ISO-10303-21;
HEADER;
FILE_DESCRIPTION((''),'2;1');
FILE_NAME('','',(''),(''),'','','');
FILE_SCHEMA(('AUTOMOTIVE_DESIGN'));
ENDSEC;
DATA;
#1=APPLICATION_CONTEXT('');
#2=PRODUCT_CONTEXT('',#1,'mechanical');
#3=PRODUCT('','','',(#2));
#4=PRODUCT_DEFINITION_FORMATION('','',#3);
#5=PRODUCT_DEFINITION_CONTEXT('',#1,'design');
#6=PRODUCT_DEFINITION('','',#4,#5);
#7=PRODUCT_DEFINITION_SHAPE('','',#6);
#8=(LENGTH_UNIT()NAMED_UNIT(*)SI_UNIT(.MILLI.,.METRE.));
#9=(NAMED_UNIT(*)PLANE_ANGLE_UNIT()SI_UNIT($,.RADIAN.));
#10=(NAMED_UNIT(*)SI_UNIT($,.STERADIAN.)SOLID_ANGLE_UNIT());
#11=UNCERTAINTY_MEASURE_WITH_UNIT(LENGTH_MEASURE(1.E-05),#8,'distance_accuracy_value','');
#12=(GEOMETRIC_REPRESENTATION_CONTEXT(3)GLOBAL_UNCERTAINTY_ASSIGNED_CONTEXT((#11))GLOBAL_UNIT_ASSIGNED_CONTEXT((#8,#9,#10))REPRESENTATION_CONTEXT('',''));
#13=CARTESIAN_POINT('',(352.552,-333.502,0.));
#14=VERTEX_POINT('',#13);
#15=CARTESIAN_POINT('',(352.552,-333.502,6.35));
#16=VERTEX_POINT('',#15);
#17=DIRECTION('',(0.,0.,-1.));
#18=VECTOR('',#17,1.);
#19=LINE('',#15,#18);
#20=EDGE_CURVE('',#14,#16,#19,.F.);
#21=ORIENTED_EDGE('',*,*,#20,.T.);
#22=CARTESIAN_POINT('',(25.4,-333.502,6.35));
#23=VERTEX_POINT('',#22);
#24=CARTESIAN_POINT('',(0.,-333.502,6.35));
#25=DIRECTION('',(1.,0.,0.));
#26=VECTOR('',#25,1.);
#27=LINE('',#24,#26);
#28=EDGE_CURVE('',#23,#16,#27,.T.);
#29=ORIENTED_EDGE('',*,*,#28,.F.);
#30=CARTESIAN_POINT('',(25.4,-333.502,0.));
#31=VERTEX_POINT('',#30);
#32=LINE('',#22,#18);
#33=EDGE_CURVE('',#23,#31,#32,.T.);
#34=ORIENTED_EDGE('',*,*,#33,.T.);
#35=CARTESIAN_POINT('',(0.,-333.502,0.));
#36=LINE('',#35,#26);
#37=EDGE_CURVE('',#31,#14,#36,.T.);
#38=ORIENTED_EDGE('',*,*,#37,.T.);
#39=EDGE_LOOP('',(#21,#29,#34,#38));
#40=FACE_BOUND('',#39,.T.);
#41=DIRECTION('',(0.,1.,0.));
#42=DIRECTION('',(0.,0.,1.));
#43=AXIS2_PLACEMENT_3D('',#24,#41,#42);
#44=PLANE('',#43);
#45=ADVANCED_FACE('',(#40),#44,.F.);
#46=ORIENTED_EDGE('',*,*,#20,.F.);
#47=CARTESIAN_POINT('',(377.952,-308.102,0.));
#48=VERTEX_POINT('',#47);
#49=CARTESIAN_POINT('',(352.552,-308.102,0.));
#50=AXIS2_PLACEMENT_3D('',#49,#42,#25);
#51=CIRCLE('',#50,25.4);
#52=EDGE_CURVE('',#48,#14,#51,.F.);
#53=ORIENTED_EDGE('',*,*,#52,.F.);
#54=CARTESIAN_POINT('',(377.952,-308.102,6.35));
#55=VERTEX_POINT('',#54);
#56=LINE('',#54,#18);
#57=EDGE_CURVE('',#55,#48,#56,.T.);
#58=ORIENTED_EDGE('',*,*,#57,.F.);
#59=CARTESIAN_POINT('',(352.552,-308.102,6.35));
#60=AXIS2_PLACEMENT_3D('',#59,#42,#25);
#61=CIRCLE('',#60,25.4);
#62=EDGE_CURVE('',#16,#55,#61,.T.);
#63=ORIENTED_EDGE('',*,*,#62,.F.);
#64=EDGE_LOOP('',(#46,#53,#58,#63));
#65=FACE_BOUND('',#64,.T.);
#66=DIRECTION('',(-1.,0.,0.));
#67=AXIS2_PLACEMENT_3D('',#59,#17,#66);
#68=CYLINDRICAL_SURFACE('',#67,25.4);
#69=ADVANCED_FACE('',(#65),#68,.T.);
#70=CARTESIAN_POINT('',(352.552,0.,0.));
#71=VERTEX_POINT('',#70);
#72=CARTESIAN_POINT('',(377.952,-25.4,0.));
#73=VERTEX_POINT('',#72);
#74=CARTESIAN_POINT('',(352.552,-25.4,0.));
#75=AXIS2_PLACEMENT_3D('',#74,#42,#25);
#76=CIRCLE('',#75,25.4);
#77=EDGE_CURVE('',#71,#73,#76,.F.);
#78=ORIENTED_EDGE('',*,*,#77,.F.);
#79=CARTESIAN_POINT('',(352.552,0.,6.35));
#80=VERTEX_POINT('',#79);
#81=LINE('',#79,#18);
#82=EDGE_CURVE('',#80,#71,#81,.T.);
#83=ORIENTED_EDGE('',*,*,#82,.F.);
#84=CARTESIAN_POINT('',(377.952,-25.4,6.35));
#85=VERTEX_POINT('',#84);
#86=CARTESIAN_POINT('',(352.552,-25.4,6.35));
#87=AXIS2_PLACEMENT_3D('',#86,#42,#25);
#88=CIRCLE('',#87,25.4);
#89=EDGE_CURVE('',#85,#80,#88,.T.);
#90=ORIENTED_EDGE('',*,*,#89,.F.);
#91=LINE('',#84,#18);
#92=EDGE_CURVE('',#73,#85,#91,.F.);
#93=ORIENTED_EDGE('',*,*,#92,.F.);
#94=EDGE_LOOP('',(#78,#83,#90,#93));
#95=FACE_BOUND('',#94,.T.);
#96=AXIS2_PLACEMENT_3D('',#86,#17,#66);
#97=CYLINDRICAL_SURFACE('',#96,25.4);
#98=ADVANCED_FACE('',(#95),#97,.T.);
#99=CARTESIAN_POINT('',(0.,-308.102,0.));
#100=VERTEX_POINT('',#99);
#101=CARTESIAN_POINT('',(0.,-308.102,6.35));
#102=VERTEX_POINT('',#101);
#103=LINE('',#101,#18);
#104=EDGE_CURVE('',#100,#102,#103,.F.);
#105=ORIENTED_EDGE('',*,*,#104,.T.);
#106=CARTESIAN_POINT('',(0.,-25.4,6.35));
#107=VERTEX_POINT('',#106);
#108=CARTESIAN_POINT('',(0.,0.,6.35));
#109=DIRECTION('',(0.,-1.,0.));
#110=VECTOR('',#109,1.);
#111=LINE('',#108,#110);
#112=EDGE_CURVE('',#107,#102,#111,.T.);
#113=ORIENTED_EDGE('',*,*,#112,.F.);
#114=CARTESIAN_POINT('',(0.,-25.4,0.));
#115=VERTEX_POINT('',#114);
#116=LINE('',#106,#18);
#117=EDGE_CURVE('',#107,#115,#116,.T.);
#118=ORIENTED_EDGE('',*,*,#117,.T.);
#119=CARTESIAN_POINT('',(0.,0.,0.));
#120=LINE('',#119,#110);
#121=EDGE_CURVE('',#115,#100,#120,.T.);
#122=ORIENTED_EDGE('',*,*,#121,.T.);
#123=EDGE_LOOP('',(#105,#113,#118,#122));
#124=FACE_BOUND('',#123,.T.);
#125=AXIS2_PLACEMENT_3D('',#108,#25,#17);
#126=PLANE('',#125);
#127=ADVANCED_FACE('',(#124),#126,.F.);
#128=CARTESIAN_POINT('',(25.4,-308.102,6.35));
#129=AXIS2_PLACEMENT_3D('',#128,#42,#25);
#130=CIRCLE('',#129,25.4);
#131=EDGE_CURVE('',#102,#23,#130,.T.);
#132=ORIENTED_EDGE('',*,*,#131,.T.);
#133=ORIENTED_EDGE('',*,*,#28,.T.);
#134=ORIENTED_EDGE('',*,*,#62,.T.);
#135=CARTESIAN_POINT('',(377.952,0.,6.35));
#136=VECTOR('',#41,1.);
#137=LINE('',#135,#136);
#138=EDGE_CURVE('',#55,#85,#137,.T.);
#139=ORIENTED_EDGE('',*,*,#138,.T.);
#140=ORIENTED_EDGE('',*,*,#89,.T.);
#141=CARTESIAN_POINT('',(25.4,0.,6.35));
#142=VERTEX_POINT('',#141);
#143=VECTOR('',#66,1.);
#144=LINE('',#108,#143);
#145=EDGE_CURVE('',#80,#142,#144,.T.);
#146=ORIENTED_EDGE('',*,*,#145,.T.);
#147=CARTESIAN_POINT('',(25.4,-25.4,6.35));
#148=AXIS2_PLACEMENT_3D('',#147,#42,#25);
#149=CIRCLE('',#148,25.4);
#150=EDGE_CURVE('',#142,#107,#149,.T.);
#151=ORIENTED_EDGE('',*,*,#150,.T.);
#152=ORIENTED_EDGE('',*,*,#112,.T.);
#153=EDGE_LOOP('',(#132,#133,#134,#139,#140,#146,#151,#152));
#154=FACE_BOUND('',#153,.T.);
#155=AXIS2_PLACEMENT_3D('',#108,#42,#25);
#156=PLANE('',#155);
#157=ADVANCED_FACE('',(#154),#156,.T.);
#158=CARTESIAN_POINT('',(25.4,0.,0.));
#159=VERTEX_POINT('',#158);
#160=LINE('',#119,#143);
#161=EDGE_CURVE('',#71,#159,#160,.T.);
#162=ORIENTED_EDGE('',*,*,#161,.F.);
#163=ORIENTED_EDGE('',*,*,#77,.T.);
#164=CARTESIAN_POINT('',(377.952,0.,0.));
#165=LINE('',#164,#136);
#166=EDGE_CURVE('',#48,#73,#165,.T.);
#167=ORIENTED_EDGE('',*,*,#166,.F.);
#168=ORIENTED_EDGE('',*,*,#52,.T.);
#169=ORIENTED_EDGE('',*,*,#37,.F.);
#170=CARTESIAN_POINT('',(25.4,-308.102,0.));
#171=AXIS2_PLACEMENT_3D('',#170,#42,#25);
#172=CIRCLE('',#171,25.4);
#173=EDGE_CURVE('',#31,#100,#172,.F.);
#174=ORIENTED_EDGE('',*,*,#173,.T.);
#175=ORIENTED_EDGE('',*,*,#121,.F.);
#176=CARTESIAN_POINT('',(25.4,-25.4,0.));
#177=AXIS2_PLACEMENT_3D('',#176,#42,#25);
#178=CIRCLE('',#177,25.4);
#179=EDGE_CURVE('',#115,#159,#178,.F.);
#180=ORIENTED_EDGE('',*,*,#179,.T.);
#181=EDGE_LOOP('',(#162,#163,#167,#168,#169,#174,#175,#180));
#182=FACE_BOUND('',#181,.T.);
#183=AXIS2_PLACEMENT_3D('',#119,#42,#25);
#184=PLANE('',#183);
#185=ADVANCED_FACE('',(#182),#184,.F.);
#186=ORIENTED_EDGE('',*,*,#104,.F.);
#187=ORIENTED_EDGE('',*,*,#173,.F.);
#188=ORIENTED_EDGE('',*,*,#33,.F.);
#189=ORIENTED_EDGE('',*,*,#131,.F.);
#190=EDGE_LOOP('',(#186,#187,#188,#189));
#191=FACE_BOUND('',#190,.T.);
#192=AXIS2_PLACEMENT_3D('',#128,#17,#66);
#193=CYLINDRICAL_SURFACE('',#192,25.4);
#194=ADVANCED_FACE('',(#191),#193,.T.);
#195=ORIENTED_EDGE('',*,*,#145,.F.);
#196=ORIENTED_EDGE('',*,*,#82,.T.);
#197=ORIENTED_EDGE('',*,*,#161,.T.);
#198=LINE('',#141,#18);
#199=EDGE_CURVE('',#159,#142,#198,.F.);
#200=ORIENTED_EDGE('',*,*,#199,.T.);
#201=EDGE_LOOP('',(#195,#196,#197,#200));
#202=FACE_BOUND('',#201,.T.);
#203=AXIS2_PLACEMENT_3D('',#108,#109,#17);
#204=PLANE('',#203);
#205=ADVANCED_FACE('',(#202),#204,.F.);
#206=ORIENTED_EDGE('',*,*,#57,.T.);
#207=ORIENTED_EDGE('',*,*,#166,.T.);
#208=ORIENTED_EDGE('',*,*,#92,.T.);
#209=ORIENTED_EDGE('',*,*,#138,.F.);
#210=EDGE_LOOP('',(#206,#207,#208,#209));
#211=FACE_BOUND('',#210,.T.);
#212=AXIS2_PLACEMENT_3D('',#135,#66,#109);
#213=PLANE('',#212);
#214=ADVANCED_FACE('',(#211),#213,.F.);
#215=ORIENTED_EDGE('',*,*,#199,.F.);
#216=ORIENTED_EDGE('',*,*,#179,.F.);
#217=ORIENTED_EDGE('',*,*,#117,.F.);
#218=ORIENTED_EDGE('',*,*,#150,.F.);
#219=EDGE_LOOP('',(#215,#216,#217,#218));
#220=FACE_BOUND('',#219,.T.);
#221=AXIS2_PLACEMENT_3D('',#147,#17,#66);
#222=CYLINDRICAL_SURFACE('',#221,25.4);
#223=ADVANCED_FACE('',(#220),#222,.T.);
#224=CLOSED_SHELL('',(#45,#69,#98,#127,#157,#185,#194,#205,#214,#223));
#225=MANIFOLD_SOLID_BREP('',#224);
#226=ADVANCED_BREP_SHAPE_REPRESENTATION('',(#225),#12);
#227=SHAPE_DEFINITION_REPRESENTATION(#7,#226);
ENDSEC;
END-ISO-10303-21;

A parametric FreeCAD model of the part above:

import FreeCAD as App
import Part
import Sketcher
Q = App.Units.Quantity


def edges_at(feature, points):
    """Names of the edges that pass closest to the given points."""
    edges = feature.Shape.Edges
    near = lambda p: min(range(len(edges)), key=lambda i: edges[i].distToShape(Part.Vertex(*p))[0])
    return sorted({f"Edge{near(p) + 1}" for p in points})


def add_polygon(sketch, points):
    """Adds a closed chain of lines whose ends are joined by coincident constraints."""
    first, n = sketch.GeometryCount, len(points)
    for a, b in zip(points, points[1:] + points[:1]):
        sketch.addGeometry(Part.LineSegment(App.Vector(*a, 0), App.Vector(*b, 0)), False)
    for i in range(n):
        sketch.addConstraint(Sketcher.Constraint("Coincident", first + i, 2, first + (i + 1) % n, 1))

doc = App.newDocument("Part")
body = doc.addObject("PartDesign::Body", "Body")

sketch1 = body.newObject("Sketcher::SketchObject", "Sketch")
sketch1.AttachmentSupport = (doc.getObject("XY_Plane"), [""])
sketch1.MapMode = "FlatFace"
add_polygon(sketch1, [(0, 0), (0, -334), (378, -334), (378, 0)])
sketch1.addConstraint(Sketcher.Constraint("Vertical", 0))
sketch1.addConstraint(Sketcher.Constraint("Horizontal", 1))
sketch1.addConstraint(Sketcher.Constraint("Vertical", 2))
sketch1.addConstraint(Sketcher.Constraint("Horizontal", 3))
sketch1.addConstraint(Sketcher.Constraint("Coincident", 3, 2, -1, 1))
sketch1.addConstraint(Sketcher.Constraint("DistanceX", 1, 1, 1, 2, Q("14.88 in")))
sketch1.addConstraint(Sketcher.Constraint("DistanceY", 0, 2, 0, 1, Q("13.13 in")))
pad1 = body.newObject("PartDesign::Pad", "Pad")
pad1.Profile = sketch1
pad1.Length = Q("0.25 in")
doc.recompute()

fillet = body.newObject("PartDesign::Fillet", "Fillet")
fillet.Base = (pad1, edges_at(pad1, [(377.952, 0, 3.175)]))
fillet.Radius = Q("1 in")
doc.recompute()

fillet2 = body.newObject("PartDesign::Fillet", "Fillet001")
fillet2.Base = (fillet, edges_at(fillet, [(377.952, -333.502, 3.175)]))
fillet2.Radius = Q("1 in")
doc.recompute()

fillet3 = body.newObject("PartDesign::Fillet", "Fillet002")
fillet3.Base = (fillet2, edges_at(fillet2, [(0, -333.502, 3.175)]))
fillet3.Radius = Q("1 in")
doc.recompute()

fillet4 = body.newObject("PartDesign::Fillet", "Fillet003")
fillet4.Base = (fillet3, edges_at(fillet3, [(0, 0, 3.175)]))
fillet4.Radius = Q("1 in")

doc.recompute()
